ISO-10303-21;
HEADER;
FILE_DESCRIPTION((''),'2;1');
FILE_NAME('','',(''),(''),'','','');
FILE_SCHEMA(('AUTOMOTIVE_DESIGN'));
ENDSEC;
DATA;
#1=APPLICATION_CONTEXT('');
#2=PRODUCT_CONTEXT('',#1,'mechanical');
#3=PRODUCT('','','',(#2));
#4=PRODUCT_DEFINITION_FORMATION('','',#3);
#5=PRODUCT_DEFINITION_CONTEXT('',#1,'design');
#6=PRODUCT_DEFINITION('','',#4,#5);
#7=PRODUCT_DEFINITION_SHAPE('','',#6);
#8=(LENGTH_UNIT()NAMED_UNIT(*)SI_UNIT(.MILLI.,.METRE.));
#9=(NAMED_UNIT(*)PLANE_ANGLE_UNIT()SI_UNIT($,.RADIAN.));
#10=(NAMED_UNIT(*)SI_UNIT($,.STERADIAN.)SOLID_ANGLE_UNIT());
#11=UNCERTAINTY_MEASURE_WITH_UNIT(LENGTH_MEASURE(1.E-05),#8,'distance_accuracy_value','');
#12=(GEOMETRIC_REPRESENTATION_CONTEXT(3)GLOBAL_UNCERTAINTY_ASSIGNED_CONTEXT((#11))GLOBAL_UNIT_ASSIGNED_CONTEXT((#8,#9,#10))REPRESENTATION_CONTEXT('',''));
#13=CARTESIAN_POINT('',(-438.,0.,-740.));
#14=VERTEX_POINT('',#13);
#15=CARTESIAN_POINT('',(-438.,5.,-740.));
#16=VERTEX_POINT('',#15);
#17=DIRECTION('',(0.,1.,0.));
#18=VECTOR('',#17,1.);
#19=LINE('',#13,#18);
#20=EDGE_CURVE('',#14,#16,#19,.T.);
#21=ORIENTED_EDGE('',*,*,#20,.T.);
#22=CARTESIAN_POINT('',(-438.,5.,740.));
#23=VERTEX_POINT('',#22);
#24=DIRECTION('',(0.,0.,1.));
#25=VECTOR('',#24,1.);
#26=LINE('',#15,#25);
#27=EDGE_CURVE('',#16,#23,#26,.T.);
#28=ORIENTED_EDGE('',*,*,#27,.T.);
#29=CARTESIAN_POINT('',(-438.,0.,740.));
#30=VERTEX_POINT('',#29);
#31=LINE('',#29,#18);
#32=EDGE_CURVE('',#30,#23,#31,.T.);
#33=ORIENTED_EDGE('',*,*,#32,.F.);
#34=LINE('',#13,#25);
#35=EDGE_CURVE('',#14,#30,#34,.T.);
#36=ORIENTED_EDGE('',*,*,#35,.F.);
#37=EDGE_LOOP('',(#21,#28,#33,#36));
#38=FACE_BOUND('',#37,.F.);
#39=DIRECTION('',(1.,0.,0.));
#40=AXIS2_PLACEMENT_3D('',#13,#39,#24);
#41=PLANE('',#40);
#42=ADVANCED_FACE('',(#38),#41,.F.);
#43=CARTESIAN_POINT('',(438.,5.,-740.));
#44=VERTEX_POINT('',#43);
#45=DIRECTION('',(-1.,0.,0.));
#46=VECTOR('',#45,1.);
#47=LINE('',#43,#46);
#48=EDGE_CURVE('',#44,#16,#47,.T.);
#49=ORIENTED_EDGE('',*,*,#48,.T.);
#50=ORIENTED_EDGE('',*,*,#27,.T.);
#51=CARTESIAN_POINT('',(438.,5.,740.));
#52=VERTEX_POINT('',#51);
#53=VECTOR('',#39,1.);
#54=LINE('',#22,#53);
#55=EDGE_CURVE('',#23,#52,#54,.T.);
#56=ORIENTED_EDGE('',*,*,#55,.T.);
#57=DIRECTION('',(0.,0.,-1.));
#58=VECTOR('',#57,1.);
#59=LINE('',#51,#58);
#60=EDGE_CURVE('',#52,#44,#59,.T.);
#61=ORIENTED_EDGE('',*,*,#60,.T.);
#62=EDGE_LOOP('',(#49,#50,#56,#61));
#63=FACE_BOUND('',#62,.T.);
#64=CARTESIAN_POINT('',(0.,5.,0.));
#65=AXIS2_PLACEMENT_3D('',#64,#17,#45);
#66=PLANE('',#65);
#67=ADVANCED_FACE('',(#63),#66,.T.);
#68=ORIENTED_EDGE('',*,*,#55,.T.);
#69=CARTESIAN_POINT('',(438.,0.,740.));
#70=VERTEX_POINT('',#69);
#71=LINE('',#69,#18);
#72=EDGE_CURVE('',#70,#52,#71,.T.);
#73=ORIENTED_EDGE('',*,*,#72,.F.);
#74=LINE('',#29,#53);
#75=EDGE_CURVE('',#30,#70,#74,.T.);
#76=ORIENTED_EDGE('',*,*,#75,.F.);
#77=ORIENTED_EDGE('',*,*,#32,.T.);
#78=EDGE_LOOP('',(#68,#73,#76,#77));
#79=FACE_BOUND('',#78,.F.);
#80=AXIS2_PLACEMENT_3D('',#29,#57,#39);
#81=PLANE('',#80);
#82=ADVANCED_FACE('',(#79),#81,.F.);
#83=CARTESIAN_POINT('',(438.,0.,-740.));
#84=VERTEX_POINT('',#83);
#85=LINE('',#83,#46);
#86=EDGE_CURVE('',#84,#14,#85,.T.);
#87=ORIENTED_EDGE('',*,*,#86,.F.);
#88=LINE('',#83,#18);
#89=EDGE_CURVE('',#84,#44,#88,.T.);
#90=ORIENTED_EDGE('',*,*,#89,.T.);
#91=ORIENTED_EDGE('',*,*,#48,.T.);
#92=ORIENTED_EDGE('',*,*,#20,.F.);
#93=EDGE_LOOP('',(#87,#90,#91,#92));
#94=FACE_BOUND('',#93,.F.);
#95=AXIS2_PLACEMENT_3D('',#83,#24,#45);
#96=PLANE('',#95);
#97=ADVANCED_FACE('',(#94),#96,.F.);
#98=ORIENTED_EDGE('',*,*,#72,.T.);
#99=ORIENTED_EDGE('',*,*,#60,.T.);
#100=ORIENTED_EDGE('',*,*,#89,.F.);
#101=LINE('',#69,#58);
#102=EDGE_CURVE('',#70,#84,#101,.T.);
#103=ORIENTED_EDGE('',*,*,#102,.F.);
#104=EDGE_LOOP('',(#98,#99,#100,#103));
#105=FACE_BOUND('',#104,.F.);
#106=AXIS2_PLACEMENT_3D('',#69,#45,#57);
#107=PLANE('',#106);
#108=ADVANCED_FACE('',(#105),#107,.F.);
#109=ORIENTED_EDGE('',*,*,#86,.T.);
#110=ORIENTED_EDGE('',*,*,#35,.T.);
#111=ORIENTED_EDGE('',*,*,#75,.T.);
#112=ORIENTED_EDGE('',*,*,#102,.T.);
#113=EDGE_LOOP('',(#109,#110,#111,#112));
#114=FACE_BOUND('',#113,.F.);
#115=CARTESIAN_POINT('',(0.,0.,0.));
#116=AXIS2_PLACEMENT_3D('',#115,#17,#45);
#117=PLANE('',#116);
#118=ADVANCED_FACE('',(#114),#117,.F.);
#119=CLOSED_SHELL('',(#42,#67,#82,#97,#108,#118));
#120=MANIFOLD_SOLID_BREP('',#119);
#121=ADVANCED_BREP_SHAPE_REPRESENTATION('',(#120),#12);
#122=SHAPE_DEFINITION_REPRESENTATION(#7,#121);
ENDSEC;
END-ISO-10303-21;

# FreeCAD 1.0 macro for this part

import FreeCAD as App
import Part
import Sketcher
from FreeCAD import Vector

doc = App.newDocument("Part")
body = doc.addObject("PartDesign::Body", "Body")

sketch1 = body.newObject("Sketcher::SketchObject", "Sketch")
sketch1.AttachmentSupport = (doc.getObject("XZ_Plane"), [""])
sketch1.MapMode = "FlatFace"
sketch1.addGeometry([
    Part.LineSegment(Vector(-438, -740, 0), Vector(-438, 740, 0)),
    Part.LineSegment(Vector(-438, 740, 0), Vector(438, 740, 0)),
    Part.LineSegment(Vector(438, 740, 0), Vector(438, -740, 0)),
    Part.LineSegment(Vector(438, -740, 0), Vector(-438, -740, 0)),
], False)
sketch1.addConstraint([
    Sketcher.Constraint("Coincident", 0, 2, 1, 1),
    Sketcher.Constraint("Coincident", 1, 2, 2, 1),
    Sketcher.Constraint("Coincident", 2, 2, 3, 1),
    Sketcher.Constraint("Coincident", 3, 2, 0, 1),
    Sketcher.Constraint("Vertical", 0),
    Sketcher.Constraint("Horizontal", 1),
    Sketcher.Constraint("Vertical", 2),
    Sketcher.Constraint("Horizontal", 3),
    Sketcher.Constraint("Symmetric", 0, 2, 2, 2, -1, 1),
    Sketcher.Constraint("DistanceX", 1, 1, 1, 2, 876.0),
    Sketcher.Constraint("DistanceY", 0, 1, 0, 2, 1480.0),
])
pad1 = body.newObject("PartDesign::Pad", "Pad")
pad1.Profile = sketch1
pad1.Length = 5
pad1.Reversed = True

doc.recompute()
